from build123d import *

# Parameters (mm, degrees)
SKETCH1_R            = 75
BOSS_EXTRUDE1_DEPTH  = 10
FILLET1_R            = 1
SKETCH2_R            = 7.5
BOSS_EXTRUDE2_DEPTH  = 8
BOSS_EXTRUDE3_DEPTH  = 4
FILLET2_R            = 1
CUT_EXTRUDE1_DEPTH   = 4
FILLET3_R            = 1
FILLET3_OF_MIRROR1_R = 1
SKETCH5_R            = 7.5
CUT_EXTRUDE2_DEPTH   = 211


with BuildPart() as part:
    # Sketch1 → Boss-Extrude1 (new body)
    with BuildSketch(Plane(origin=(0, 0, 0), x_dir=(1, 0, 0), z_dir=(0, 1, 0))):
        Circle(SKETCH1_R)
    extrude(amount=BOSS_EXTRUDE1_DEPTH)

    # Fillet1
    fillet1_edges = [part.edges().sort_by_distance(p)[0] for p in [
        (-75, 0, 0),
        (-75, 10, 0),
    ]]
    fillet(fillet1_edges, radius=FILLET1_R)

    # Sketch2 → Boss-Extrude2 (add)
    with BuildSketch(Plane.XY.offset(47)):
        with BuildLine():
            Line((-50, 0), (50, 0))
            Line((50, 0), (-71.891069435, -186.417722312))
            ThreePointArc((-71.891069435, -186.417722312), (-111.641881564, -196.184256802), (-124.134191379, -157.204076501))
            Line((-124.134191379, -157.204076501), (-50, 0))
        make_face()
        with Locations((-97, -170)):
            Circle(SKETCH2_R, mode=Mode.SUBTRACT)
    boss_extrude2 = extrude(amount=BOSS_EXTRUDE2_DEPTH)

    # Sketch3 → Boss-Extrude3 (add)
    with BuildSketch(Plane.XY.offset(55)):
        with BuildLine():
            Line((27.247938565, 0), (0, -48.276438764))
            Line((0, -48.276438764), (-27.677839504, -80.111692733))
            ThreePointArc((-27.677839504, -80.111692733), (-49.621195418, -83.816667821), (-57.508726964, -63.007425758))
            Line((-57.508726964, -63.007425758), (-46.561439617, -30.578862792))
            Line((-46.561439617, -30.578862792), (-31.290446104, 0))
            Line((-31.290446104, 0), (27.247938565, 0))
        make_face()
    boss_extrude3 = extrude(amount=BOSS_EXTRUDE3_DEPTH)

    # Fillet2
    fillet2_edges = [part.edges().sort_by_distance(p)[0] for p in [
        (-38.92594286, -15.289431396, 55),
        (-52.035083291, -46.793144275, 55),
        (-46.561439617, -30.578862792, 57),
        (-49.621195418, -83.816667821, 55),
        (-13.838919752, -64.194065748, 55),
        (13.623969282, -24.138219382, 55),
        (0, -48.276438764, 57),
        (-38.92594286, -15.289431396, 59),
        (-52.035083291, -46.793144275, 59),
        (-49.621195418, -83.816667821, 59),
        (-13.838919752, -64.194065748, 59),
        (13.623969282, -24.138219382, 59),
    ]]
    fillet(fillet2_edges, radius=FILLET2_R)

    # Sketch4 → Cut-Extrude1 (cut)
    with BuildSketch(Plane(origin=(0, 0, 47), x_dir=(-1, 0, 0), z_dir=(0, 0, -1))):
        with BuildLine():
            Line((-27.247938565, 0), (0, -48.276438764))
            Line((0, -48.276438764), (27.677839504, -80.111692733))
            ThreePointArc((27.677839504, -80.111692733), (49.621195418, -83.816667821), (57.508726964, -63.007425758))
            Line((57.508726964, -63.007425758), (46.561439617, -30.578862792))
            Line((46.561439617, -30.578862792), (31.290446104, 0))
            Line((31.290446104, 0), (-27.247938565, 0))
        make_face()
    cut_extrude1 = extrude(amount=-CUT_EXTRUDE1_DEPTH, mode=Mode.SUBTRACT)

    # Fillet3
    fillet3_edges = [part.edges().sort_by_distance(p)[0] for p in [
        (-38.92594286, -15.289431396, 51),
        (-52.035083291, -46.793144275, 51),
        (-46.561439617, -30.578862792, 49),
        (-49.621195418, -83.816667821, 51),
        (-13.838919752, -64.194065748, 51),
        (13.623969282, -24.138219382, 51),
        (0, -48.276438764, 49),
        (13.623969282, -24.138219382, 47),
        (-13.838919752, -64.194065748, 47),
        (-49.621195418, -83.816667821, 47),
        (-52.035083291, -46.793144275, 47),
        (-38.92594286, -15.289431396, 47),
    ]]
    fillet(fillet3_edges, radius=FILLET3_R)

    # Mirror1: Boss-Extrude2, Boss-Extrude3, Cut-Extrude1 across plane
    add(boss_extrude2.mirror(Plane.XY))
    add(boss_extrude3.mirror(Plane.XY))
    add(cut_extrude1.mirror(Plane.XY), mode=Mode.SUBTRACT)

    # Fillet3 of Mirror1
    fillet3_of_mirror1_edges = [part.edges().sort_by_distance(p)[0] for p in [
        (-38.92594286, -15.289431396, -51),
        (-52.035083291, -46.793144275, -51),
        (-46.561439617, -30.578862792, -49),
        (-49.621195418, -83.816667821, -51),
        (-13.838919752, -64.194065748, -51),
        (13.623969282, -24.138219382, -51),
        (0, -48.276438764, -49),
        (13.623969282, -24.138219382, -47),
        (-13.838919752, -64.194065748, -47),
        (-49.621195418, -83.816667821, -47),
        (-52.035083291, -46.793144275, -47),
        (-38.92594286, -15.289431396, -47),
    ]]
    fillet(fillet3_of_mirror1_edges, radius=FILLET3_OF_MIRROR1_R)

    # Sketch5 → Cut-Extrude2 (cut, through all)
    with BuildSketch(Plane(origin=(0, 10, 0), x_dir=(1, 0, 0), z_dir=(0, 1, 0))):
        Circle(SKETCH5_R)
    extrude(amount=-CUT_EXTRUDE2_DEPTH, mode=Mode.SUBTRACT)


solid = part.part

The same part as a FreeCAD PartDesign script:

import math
import FreeCAD as App
import Part
import Sketcher


def edges_at(feature, points):
    """Names of the edges that pass closest to the given points."""
    edges = feature.Shape.Edges
    near = lambda p: min(range(len(edges)), key=lambda i: edges[i].distToShape(Part.Vertex(*p))[0])
    return sorted({f"Edge{near(p) + 1}" for p in points})

doc = App.newDocument("Part")
body = doc.addObject("PartDesign::Body", "Body")

# Sketch on XZ plane
sketch1 = doc.addObject("Sketcher::SketchObject", "Sketch")
body.addObject(sketch1)
sketch1.AttachmentSupport = (doc.XZ_Plane, [""])
sketch1.MapMode = "FlatFace"
sketch1.addGeometry(Part.Circle(App.Vector(0, 0, 0), App.Vector(0, 0, 1), 75), False)
sketch1.addConstraint(Sketcher.Constraint("Coincident", 0, 3, -1, 1))
sketch1.addConstraint(Sketcher.Constraint("Diameter", 0, 150.0))
pad1 = doc.addObject("PartDesign::Pad", "Pad")
body.addObject(pad1)
pad1.Profile = sketch1
pad1.Length = 10
pad1.Reversed = True
doc.recompute()

fillet = doc.addObject("PartDesign::Fillet", "Fillet")
body.addObject(fillet)
fillet.Base = (pad1, edges_at(pad1, [(-75, 0, 0), (-75, 10, 0)]))
fillet.Radius = 1

# Sketch on XY plane
sketch2 = doc.addObject("Sketcher::SketchObject", "Sketch001")
body.addObject(sketch2)
sketch2.AttachmentSupport = (doc.XY_Plane, [""])
sketch2.MapMode = "FlatFace"
sketch2.AttachmentOffset = App.Placement(App.Vector(0, 0, 47), App.Rotation())
sketch2.addGeometry(Part.LineSegment(App.Vector(50, 0, 0), App.Vector(-50, 0, 0)), False)
sketch2.addGeometry(Part.LineSegment(App.Vector(-50, 0, 0), App.Vector(-124, -157, 0)), False)
sketch2.addGeometry(Part.ArcOfCircle(Part.Circle(App.Vector(-97, -170, 0), App.Vector(0, 0, 1), 30), math.radians(155), math.radians(327)), False)
sketch2.addGeometry(Part.LineSegment(App.Vector(-72, -186, 0), App.Vector(50, 0, 0)), False)
sketch2.addGeometry(Part.Circle(App.Vector(-97, -170, 0), App.Vector(0, 0, 1), 8), False)
sketch2.addConstraint(Sketcher.Constraint("Coincident", 0, 2, 1, 1))
sketch2.addConstraint(Sketcher.Constraint("Tangent", 1, 2, 2, 1))
sketch2.addConstraint(Sketcher.Constraint("Tangent", 2, 2, 3, 1))
sketch2.addConstraint(Sketcher.Constraint("Coincident", 3, 2, 0, 1))
sketch2.addConstraint(Sketcher.Constraint("Horizontal", 0))
sketch2.addConstraint(Sketcher.Constraint("Coincident", 4, 3, 2, 3))
sketch2.addConstraint(Sketcher.Constraint("Symmetric", 0, 2, 3, 2, -1, 1))
sketch2.addConstraint(Sketcher.Constraint("Diameter", 4, 15.0))
sketch2.addConstraint(Sketcher.Constraint("Radius", 2, 30.0))
sketch2.addConstraint(Sketcher.Constraint("DistanceX", 0, 2, 0, 1, 100.0))
sketch2.addConstraint(Sketcher.Constraint("DistanceX", 2, 3, -1, 1, 97.0))
sketch2.addConstraint(Sketcher.Constraint("DistanceY", 2, 3, -1, 1, 170.0))
pad2 = doc.addObject("PartDesign::Pad", "Pad001")
body.addObject(pad2)
pad2.Profile = sketch2
pad2.Length = 8

# Sketch on XY plane
sketch3 = doc.addObject("Sketcher::SketchObject", "Sketch002")
body.addObject(sketch3)
sketch3.AttachmentSupport = (doc.XY_Plane, [""])
sketch3.MapMode = "FlatFace"
sketch3.AttachmentOffset = App.Placement(App.Vector(0, 0, 55), App.Rotation())
sketch3.addGeometry(Part.LineSegment(App.Vector(0, -48, 0), App.Vector(27, 0, 0)), False)
sketch3.addGeometry(Part.LineSegment(App.Vector(27, 0, 0), App.Vector(-31, 0, 0)), False)
sketch3.addGeometry(Part.LineSegment(App.Vector(-31, 0, 0), App.Vector(-47, -31, 0)), False)
sketch3.addGeometry(Part.LineSegment(App.Vector(-47, -31, 0), App.Vector(-58, -63, 0)), False)
sketch3.addGeometry(Part.ArcOfCircle(Part.Circle(App.Vector(-41, -69, 0), App.Vector(0, 0, 1), 18), math.radians(161), math.radians(319)), False)
sketch3.addGeometry(Part.LineSegment(App.Vector(-28, -80, 0), App.Vector(0, -48, 0)), False)
sketch3.addConstraint(Sketcher.Constraint("Coincident", 0, 2, 1, 1))
sketch3.addConstraint(Sketcher.Constraint("Coincident", 1, 2, 2, 1))
sketch3.addConstraint(Sketcher.Constraint("Coincident", 2, 2, 3, 1))
sketch3.addConstraint(Sketcher.Constraint("Tangent", 3, 2, 4, 1))
sketch3.addConstraint(Sketcher.Constraint("Tangent", 4, 2, 5, 1))
sketch3.addConstraint(Sketcher.Constraint("Coincident", 5, 2, 0, 1))
sketch3.addConstraint(Sketcher.Constraint("Horizontal", 1))
sketch3.addConstraint(Sketcher.Constraint("PointOnObject", 0, 2, -1))
sketch3.addConstraint(Sketcher.Constraint("PointOnObject", 5, 2, -2))
sketch3.addConstraint(Sketcher.Constraint("Radius", 4, 17.525592))
sketch3.addConstraint(Sketcher.Constraint("DistanceX", 2, 2, 4, 2, 18.8836))
sketch3.addConstraint(Sketcher.Constraint("Distance", 0, 55.43523))
sketch3.addConstraint(Sketcher.Constraint("Distance", 3, 34.226522))
sketch3.addConstraint(Sketcher.Constraint("DistanceX", 1, 2, 1, 1, 58.538385))
sketch3.addConstraint(Sketcher.Constraint("DistanceX", -1, 1, 0, 2, 27.247939))
sketch3.addConstraint(Sketcher.Constraint("DistanceX", 2, 2, -1, 1, 46.56144))
sketch3.addConstraint(Sketcher.Constraint("DistanceX", 4, 3, 1, 2, 9.613328))
pad3 = doc.addObject("PartDesign::Pad", "Pad002")
body.addObject(pad3)
pad3.Profile = sketch3
pad3.Length = 4
doc.recompute()

fillet2 = doc.addObject("PartDesign::Fillet", "Fillet001")
body.addObject(fillet2)
fillet2.Base = (pad3, edges_at(pad3, [
    (-38.926, -15.289, 55),
    (-52.035, -46.793, 55),
    (-46.561, -30.579, 57),
    (-49.621, -83.817, 55),
    (-13.839, -64.194, 55),
    (13.624, -24.138, 55),
    (0, -48.276, 57),
    (-38.926, -15.289, 59),
    (-52.035, -46.793, 59),
    (-49.621, -83.817, 59),
    (-13.839, -64.194, 59),
    (13.624, -24.138, 59),
]))
fillet2.Radius = 1

# Sketch on XY plane
sketch4 = doc.addObject("Sketcher::SketchObject", "Sketch003")
body.addObject(sketch4)
sketch4.AttachmentSupport = (doc.XY_Plane, [""])
sketch4.MapMode = "FlatFace"
sketch4.AttachmentOffset = App.Placement(App.Vector(0, 0, 47), App.Rotation())
sketch4.addGeometry(Part.LineSegment(App.Vector(27, 0, 0), App.Vector(0, -48, 0)), False)
sketch4.addGeometry(Part.LineSegment(App.Vector(0, -48, 0), App.Vector(-28, -80, 0)), False)
sketch4.addGeometry(Part.ArcOfCircle(Part.Circle(App.Vector(-41, -69, 0), App.Vector(0, 0, 1), 18), math.radians(161), math.radians(319)), False)
sketch4.addGeometry(Part.LineSegment(App.Vector(-58, -63, 0), App.Vector(-47, -31, 0)), False)
sketch4.addGeometry(Part.LineSegment(App.Vector(-47, -31, 0), App.Vector(-31, 0, 0)), False)
sketch4.addGeometry(Part.LineSegment(App.Vector(-31, 0, 0), App.Vector(27, 0, 0)), False)
sketch4.addConstraint(Sketcher.Constraint("Coincident", 0, 2, 1, 1))
sketch4.addConstraint(Sketcher.Constraint("Tangent", 1, 2, 2, 2))
sketch4.addConstraint(Sketcher.Constraint("Tangent", 2, 1, 3, 1))
sketch4.addConstraint(Sketcher.Constraint("Coincident", 3, 2, 4, 1))
sketch4.addConstraint(Sketcher.Constraint("Coincident", 4, 2, 5, 1))
sketch4.addConstraint(Sketcher.Constraint("Coincident", 5, 2, 0, 1))
sketch4.addConstraint(Sketcher.Constraint("Horizontal", 5))
sketch4.addConstraint(Sketcher.Constraint("PointOnObject", 0, 2, -2))
sketch4.addConstraint(Sketcher.Constraint("PointOnObject", 4, 2, -1))
sketch4.addConstraint(Sketcher.Constraint("Radius", 2, 17.525592))
sketch4.addConstraint(Sketcher.Constraint("DistanceX", 3, 2, 1, 2, 18.8836))
sketch4.addConstraint(Sketcher.Constraint("Distance", 0, 55.43523))
sketch4.addConstraint(Sketcher.Constraint("Distance", 3, 34.226522))
sketch4.addConstraint(Sketcher.Constraint("DistanceX", 5, 1, 5, 2, 58.538385))
sketch4.addConstraint(Sketcher.Constraint("DistanceY", 0, 2, -1, 1, 48.276439))
sketch4.addConstraint(Sketcher.Constraint("DistanceX", 1, 2, -1, 1, 27.67784))
sketch4.addConstraint(Sketcher.Constraint("DistanceY", 1, 2, 2, 3, 11.49874))
pocket1 = doc.addObject("PartDesign::Pocket", "Pocket")
body.addObject(pocket1)
pocket1.Profile = sketch4
pocket1.Length = 4
pocket1.Reversed = True
doc.recompute()

fillet3 = doc.addObject("PartDesign::Fillet", "Fillet002")
body.addObject(fillet3)
fillet3.Base = (pocket1, edges_at(pocket1, [
    (-38.926, -15.289, 51),
    (-52.035, -46.793, 51),
    (-46.561, -30.579, 49),
    (-49.621, -83.817, 51),
    (-13.839, -64.194, 51),
    (13.624, -24.138, 51),
    (0, -48.276, 49),
    (13.624, -24.138, 47),
    (-13.839, -64.194, 47),
    (-49.621, -83.817, 47),
    (-52.035, -46.793, 47),
    (-38.926, -15.289, 47),
]))
fillet3.Radius = 1
doc.recompute()

mirrored = doc.addObject("PartDesign::Mirrored", "Mirrored")
body.addObject(mirrored)
mirrored.Originals = [pad2, pad3, pocket1]
mirrored.MirrorPlane = (doc.XY_Plane, [""])
body.Tip = mirrored
doc.recompute()

fillet4 = doc.addObject("PartDesign::Fillet", "Fillet003")
body.addObject(fillet4)
fillet4.Base = (mirrored, edges_at(mirrored, [
    (-38.926, -15.289, -51),
    (-52.035, -46.793, -51),
    (-46.561, -30.579, -49),
    (-49.621, -83.817, -51),
    (-13.839, -64.194, -51),
    (13.624, -24.138, -51),
    (0, -48.276, -49),
    (13.624, -24.138, -47),
    (-13.839, -64.194, -47),
    (-49.621, -83.817, -47),
    (-52.035, -46.793, -47),
    (-38.926, -15.289, -47),
]))
fillet4.Radius = 1

# Sketch on XZ plane
sketch5 = doc.addObject("Sketcher::SketchObject", "Sketch004")
body.addObject(sketch5)
sketch5.AttachmentSupport = (doc.XZ_Plane, [""])
sketch5.MapMode = "FlatFace"
sketch5.AttachmentOffset = App.Placement(App.Vector(0, 0, -10), App.Rotation())
sketch5.addGeometry(Part.Circle(App.Vector(0, 0, 0), App.Vector(0, 0, 1), 8), False)
sketch5.addConstraint(Sketcher.Constraint("Coincident", 0, 3, -1, 1))
sketch5.addConstraint(Sketcher.Constraint("Diameter", 0, 15.0))
pocket2 = doc.addObject("PartDesign::Pocket", "Pocket001")
body.addObject(pocket2)
pocket2.Profile = sketch5
pocket2.Type = "ThroughAll"
pocket2.Reversed = True

doc.recompute()
